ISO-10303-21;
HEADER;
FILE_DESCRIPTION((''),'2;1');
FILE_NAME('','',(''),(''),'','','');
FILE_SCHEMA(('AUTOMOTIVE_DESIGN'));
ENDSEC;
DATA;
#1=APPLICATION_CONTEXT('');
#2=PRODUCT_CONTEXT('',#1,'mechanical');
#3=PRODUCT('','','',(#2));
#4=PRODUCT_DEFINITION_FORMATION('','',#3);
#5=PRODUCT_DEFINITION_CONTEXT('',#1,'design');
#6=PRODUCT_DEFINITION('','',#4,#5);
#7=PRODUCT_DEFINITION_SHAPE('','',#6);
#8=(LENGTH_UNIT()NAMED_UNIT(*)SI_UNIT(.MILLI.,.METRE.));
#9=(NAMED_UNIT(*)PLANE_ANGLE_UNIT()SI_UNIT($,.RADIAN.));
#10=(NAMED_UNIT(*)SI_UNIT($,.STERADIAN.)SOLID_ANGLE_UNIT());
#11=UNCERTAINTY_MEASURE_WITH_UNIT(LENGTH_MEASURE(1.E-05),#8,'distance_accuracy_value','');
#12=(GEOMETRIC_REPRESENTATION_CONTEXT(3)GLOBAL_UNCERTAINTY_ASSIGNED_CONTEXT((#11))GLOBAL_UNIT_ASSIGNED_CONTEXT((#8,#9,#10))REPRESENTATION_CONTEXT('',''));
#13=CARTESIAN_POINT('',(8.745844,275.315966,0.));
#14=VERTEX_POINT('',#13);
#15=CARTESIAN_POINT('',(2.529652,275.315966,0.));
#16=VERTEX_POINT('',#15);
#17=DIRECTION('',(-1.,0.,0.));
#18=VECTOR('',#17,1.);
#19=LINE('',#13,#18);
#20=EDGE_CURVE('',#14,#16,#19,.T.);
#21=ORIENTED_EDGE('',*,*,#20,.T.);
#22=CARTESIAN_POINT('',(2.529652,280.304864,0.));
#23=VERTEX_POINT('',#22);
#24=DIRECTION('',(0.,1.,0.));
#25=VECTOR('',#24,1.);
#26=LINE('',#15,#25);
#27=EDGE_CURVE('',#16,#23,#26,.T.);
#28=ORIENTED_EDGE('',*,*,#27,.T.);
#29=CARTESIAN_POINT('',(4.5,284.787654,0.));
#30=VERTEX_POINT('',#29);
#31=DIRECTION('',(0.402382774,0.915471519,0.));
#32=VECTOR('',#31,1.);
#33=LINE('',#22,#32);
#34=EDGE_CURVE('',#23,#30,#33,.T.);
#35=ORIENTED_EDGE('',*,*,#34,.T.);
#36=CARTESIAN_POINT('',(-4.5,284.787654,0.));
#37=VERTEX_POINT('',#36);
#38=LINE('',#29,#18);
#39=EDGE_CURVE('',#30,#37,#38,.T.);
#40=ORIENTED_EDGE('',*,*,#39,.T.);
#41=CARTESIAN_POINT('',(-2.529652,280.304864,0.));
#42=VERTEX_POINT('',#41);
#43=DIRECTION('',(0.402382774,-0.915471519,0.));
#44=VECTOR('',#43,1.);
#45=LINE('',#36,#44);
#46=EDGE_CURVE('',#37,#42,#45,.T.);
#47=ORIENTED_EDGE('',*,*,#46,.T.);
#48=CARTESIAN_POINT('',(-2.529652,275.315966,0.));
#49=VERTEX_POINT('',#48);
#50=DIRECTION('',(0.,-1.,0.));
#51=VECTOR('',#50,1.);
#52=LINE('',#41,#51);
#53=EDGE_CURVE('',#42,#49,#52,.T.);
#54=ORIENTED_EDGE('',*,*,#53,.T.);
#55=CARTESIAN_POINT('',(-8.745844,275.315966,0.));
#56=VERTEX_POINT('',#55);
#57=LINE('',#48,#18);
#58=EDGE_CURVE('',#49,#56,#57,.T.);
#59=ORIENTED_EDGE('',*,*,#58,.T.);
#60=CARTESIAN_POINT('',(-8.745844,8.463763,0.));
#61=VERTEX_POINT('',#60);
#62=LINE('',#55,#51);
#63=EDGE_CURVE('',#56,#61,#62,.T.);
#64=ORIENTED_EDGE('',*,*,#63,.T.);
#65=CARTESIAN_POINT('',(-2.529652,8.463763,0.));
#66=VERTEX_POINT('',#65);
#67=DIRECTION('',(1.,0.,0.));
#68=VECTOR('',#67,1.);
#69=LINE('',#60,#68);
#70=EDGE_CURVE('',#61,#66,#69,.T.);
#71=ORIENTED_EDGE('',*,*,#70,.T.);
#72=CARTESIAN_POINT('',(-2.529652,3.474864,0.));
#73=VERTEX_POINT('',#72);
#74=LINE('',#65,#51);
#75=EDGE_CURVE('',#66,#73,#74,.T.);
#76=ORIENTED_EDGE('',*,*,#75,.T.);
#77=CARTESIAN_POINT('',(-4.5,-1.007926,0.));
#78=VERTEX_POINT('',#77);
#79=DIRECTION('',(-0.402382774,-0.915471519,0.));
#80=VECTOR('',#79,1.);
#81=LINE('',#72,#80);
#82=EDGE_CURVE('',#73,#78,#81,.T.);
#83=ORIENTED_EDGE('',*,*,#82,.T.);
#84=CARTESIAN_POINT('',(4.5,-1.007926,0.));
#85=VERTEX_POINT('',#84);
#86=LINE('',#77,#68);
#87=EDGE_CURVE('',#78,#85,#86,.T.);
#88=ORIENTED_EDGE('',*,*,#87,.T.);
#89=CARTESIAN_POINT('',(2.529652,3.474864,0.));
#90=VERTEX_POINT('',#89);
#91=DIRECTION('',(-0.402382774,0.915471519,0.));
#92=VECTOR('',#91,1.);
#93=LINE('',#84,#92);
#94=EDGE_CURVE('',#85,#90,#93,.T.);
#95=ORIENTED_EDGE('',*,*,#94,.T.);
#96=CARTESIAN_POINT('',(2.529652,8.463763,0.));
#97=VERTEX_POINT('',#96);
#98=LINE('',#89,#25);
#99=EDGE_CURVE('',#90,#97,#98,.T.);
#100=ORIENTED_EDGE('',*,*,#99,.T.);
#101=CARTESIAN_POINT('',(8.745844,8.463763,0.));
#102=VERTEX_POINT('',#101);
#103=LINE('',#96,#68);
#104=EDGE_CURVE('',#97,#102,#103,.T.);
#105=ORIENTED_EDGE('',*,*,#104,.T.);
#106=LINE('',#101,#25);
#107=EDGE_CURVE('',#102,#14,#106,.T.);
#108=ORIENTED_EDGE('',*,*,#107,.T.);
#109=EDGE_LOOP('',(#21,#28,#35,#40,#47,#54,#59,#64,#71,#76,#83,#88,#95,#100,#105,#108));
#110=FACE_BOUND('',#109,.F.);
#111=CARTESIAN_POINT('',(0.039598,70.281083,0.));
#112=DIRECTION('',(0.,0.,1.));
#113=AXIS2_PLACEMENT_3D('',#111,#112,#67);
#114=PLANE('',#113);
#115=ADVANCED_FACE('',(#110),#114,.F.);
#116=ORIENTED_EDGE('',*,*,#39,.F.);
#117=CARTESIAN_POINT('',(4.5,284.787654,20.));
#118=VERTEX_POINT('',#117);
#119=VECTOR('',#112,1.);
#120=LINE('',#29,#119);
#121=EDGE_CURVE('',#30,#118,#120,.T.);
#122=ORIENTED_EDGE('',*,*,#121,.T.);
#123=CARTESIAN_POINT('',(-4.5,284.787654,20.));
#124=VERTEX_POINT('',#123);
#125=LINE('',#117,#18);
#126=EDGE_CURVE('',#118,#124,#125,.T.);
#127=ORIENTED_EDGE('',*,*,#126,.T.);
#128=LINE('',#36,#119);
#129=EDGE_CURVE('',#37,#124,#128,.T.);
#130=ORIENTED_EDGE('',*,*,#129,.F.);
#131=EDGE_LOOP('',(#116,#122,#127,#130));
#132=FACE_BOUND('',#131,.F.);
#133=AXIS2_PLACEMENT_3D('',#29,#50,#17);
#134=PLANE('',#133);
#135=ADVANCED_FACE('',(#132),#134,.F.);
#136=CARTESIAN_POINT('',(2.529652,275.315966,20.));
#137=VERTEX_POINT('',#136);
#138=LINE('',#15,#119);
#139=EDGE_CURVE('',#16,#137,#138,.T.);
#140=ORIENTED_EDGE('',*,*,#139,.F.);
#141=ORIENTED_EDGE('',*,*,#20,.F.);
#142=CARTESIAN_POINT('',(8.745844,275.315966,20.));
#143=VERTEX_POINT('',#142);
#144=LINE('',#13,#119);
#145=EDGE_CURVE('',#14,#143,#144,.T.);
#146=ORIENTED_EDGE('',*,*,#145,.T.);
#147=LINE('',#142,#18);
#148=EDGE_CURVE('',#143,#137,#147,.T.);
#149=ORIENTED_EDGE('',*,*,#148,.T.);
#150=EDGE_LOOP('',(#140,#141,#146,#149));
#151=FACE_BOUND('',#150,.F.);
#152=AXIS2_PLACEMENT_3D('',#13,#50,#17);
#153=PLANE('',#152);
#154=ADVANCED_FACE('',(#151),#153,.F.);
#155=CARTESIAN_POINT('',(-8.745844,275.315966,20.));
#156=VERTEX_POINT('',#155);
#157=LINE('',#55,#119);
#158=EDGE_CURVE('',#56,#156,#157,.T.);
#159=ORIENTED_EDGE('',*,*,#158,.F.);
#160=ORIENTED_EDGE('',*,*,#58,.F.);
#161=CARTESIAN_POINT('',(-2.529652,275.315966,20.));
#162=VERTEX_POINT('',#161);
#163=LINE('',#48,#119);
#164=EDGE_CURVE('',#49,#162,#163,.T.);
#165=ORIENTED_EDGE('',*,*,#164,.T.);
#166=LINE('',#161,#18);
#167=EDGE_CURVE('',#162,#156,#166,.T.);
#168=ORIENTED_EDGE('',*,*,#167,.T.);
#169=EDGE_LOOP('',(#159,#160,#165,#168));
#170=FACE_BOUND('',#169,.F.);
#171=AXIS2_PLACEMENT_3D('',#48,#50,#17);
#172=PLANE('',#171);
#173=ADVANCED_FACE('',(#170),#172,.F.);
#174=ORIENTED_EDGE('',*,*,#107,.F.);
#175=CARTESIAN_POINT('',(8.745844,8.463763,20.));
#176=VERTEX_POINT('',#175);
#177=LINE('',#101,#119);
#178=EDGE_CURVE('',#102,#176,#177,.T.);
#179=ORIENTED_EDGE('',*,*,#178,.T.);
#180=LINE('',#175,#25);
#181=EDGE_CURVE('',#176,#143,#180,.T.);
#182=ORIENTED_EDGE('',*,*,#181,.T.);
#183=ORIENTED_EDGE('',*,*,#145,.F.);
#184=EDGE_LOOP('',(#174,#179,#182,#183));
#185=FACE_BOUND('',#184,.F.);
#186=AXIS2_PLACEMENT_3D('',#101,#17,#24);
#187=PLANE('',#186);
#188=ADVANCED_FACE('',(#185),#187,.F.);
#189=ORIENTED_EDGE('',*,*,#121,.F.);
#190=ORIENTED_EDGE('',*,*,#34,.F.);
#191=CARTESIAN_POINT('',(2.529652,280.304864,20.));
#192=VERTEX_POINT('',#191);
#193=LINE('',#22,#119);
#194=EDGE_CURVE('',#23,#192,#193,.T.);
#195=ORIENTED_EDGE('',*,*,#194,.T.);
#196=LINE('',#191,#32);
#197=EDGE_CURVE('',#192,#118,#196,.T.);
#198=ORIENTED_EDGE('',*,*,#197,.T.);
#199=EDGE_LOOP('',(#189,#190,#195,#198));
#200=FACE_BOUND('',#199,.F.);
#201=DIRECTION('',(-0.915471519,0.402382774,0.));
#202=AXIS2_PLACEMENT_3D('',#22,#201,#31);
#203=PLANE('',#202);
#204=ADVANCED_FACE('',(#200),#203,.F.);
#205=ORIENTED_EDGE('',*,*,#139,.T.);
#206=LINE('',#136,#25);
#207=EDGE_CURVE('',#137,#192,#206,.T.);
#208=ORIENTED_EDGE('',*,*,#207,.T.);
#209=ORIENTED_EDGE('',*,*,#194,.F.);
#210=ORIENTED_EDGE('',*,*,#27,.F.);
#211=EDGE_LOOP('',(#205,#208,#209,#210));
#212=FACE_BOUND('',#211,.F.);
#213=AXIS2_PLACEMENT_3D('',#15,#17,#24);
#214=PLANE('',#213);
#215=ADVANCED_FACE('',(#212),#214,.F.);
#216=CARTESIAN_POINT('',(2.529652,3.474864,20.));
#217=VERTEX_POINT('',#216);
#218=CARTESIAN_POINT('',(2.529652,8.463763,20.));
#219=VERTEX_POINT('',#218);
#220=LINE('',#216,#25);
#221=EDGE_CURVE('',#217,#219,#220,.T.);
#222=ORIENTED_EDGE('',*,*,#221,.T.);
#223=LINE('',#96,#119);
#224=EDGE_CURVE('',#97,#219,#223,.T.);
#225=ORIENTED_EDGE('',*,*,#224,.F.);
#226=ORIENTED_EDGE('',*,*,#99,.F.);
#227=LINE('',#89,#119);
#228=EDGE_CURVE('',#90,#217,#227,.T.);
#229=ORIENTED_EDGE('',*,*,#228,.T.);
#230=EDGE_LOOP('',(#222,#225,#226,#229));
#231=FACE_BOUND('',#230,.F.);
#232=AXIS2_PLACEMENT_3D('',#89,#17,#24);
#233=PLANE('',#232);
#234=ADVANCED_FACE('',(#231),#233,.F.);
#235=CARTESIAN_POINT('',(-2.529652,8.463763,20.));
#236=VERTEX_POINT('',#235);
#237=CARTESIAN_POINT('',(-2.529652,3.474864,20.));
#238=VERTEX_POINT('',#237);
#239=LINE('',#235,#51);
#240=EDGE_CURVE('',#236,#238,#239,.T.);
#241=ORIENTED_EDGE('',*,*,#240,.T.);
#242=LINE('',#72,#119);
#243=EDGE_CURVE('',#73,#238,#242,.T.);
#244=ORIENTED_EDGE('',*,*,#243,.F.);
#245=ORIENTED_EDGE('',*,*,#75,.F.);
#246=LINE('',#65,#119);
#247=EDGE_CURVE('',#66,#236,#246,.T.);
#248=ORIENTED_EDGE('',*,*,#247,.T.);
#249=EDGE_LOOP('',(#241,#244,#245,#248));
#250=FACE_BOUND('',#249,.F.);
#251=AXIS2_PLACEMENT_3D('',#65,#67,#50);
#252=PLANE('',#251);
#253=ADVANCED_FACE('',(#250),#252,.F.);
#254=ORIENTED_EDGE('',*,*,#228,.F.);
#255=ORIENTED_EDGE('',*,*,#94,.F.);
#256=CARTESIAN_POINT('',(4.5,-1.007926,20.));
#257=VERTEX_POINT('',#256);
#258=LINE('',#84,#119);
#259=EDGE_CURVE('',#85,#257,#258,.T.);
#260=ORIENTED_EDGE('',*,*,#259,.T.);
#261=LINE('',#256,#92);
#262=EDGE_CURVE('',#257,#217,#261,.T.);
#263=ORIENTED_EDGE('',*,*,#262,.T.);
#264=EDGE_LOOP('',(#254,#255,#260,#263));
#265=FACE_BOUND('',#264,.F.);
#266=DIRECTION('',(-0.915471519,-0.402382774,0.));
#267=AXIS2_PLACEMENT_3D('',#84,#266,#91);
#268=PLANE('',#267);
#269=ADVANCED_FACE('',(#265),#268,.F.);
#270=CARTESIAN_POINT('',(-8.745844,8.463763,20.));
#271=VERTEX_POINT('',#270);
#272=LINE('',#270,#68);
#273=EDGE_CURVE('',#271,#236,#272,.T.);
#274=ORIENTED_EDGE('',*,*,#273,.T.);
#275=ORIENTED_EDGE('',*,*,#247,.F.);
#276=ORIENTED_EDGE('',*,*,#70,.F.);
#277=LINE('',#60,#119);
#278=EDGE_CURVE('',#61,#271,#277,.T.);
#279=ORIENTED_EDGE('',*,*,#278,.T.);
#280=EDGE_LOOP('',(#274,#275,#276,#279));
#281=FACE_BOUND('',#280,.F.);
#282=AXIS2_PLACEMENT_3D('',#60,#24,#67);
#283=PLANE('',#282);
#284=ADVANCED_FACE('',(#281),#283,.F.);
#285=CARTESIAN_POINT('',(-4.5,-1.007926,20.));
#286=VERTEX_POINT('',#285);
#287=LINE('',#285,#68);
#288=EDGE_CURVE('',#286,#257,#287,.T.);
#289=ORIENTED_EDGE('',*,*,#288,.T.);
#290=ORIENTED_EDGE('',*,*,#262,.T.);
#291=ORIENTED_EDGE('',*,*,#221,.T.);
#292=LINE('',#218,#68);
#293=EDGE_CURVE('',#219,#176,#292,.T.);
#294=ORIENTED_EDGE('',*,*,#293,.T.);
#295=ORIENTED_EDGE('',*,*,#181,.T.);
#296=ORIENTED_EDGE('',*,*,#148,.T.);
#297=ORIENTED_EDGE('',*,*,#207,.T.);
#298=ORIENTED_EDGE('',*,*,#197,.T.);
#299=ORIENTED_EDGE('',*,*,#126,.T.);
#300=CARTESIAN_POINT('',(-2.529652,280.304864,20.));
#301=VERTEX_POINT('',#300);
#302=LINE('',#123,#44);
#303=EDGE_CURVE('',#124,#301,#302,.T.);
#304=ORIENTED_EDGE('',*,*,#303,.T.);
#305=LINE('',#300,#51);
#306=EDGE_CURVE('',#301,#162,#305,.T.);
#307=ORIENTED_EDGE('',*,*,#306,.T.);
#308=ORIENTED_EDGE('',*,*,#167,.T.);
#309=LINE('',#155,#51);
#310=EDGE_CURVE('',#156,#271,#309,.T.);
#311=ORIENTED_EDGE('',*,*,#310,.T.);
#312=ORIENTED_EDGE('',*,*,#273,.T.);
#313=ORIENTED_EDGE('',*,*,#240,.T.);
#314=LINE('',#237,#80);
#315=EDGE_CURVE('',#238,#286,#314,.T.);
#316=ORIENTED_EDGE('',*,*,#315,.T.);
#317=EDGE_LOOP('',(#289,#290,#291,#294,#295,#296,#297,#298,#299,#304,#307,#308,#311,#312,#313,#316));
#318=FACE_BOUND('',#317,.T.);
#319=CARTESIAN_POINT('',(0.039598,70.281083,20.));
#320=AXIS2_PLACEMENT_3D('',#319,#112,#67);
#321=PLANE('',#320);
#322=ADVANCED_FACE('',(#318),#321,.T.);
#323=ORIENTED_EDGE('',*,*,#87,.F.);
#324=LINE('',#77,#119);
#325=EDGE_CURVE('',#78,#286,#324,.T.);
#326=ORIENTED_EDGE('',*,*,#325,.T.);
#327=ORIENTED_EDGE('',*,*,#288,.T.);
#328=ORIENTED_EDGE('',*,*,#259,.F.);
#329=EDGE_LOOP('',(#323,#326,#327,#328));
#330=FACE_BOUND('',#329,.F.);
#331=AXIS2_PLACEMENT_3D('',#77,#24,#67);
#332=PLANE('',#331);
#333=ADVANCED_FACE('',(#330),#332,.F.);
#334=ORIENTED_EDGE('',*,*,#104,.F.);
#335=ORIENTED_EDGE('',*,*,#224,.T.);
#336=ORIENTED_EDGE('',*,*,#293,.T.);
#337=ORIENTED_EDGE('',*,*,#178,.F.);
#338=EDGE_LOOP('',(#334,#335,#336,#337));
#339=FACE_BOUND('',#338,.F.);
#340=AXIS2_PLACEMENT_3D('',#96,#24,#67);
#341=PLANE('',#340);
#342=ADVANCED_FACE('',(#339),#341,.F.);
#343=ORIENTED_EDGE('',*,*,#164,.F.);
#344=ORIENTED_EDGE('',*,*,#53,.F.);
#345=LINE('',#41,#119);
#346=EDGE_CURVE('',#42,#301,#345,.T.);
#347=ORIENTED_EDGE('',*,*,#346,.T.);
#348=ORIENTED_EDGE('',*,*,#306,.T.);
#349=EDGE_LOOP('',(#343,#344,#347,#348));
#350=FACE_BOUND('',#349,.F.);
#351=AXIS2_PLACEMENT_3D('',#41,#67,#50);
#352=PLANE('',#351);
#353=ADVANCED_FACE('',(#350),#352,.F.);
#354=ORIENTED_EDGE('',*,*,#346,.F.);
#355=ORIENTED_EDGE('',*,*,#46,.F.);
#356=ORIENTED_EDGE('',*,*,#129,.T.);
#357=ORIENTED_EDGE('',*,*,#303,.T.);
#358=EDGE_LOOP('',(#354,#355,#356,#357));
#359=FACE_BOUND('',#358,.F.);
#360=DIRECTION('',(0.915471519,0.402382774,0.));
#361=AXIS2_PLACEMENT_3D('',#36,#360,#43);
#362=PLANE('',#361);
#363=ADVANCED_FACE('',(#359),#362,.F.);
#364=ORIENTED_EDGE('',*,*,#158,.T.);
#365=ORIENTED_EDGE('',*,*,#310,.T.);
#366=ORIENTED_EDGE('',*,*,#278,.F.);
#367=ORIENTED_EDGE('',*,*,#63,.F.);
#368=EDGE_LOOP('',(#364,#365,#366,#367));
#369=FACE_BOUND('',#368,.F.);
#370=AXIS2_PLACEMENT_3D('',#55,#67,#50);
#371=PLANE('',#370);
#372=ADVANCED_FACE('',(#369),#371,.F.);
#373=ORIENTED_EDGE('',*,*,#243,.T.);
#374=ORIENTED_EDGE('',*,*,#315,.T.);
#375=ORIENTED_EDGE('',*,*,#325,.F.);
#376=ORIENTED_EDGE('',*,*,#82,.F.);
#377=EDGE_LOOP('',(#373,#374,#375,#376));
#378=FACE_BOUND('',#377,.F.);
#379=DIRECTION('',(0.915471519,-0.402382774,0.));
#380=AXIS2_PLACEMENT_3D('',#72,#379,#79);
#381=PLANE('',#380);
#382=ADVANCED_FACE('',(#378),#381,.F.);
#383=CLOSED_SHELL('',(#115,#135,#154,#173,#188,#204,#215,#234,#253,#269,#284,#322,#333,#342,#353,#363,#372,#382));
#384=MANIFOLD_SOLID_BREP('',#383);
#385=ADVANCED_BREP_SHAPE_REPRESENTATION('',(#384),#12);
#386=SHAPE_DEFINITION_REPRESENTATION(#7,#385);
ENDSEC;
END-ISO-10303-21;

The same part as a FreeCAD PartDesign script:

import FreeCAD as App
import Part
import Sketcher

V = App.Vector


def add_polygon(sketch, points):
    """Adds a closed chain of lines whose ends are joined by coincident constraints."""
    first, n = sketch.GeometryCount, len(points)
    for a, b in zip(points, points[1:] + points[:1]):
        sketch.addGeometry(Part.LineSegment(App.Vector(*a, 0), App.Vector(*b, 0)), False)
    for i in range(n):
        sketch.addConstraint(Sketcher.Constraint("Coincident", first + i, 2, first + (i + 1) % n, 1))

doc = App.newDocument("Part")
body = doc.addObject("PartDesign::Body", "Body")

# Sketch on XY plane
sketch1 = body.newObject("Sketcher::SketchObject", "Sketch")
sketch1.AttachmentSupport = (doc.getObject("XY_Plane"), [""])
sketch1.MapMode = "FlatFace"
add_polygon(sketch1, [(4.5, -1.007926), (2.529652, 3.474864), (2.529652, 8.463763), (8.745844, 8.463763), (8.745844, 275.315966), (2.529652, 275.315966), (2.529652, 280.304864), (4.5, 284.787654), (-4.5, 284.787654), (-2.529652, 280.304864), (-2.529652, 275.315966), (-8.745844, 275.315966), (-8.745844, 8.463763), (-2.529652, 8.463763), (-2.529652, 3.474864), (-4.5, -1.007926)])  # lines 0-15
sketch1.addConstraint([
    Sketcher.Constraint("Vertical", 1),
    Sketcher.Constraint("Horizontal", 2),
    Sketcher.Constraint("Vertical", 3),
    Sketcher.Constraint("Horizontal", 4),
    Sketcher.Constraint("Vertical", 5),
    Sketcher.Constraint("Horizontal", 7),
    Sketcher.Constraint("Vertical", 9),
    Sketcher.Constraint("Horizontal", 10),
    Sketcher.Constraint("Vertical", 11),
    Sketcher.Constraint("Horizontal", 12),
    Sketcher.Constraint("Vertical", 13),
    Sketcher.Constraint("Horizontal", 15),
    Sketcher.Constraint("Symmetric", 5, 2, 8, 2, -2),
    Sketcher.Constraint("Symmetric", 3, 2, 10, 2, -2),
    Sketcher.Constraint("Symmetric", 1, 2, 12, 2, -2),
    Sketcher.Constraint("Parallel", 0, 8),
    Sketcher.Constraint("Parallel", 6, 14),
    Sketcher.Constraint("Horizontal", 0, 2, 13, 2),
    Sketcher.Constraint("Vertical", 1, 2, 4, 2),
    Sketcher.Constraint("Vertical", 7, 2, 14, 2),
    Sketcher.Constraint("Vertical", 6, 2, 15, 2),
    Sketcher.Constraint("Equal", 1, 5),
    Sketcher.Constraint("DistanceX", 7, 2, 7, 1, 9.0),
    Sketcher.Constraint("DistanceY", 0, 2, 5, 2, 276.83),
    Sketcher.Constraint("DistanceY", 1, 1, 1, 2, 4.988899),
    Sketcher.Constraint("Distance", 0, 4.896701),
    Sketcher.Constraint("DistanceX", 2, 1, 2, 2, 6.216192),
    Sketcher.Constraint("DistanceX", -1, 1, 0, 2, 2.529652),
    Sketcher.Constraint("DistanceY", -1, 1, 0, 2, 3.474864),
])
pad1 = body.newObject("PartDesign::Pad", "Pad")
pad1.Profile = sketch1
pad1.Length = 20

doc.recompute()
